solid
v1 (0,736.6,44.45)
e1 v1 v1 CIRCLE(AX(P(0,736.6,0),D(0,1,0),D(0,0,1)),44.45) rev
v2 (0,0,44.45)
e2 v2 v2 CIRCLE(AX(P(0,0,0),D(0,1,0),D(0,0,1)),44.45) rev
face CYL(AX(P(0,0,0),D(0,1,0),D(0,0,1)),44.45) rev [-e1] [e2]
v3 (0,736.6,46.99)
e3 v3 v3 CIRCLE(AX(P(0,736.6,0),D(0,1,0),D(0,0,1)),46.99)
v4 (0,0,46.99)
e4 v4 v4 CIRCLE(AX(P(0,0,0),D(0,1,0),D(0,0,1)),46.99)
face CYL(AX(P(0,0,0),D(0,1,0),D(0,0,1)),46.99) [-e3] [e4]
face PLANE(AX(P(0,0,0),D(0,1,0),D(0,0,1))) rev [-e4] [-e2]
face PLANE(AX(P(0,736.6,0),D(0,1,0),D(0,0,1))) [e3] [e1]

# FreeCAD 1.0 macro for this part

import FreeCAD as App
import Part
import Sketcher
Q = App.Units.Quantity

doc = App.newDocument("Part")
body = doc.addObject("PartDesign::Body", "Body")

# Sketch on XZ plane
sketch1 = body.newObject("Sketcher::SketchObject", "Sketch")
sketch1.AttachmentSupport = (doc.getObject("XZ_Plane"), [""])
sketch1.MapMode = "FlatFace"
sketch1.addGeometry([
    Part.Circle(App.Vector(0, 0, 0), App.Vector(0, 0, 1), 46.99),
    Part.Circle(App.Vector(0, 0, 0), App.Vector(0, 0, 1), 44.45),
], False)
sketch1.addConstraint([
    Sketcher.Constraint("Coincident", 0, 3, -1, 1),
    Sketcher.Constraint("Coincident", 1, 3, -1, 1),
    Sketcher.Constraint("Diameter", 0, Q("3.7 in")),
    Sketcher.Constraint("Diameter", 1, Q("3.5 in")),
])

# Sketch on XY plane
sketch2 = body.newObject("Sketcher::SketchObject", "Sketch001")
sketch2.AttachmentSupport = (doc.getObject("XY_Plane"), [""])
sketch2.MapMode = "FlatFace"
sketch2.addGeometry(Part.LineSegment(App.Vector(0, 0, 0), App.Vector(0, 736.6, 0)), False)
sketch2.addConstraint([
    Sketcher.Constraint("Vertical", 0),
    Sketcher.Constraint("Coincident", 0, 1, -1, 1),
    Sketcher.Constraint("DistanceY", 0, 1, 0, 2, Q("29 in")),
])
doc.recompute()

additivepipe = body.newObject("PartDesign::AdditivePipe", "AdditivePipe")
additivepipe.Profile = sketch1
additivepipe.Spine = (sketch2, ["Edge1"])

doc.recompute()
